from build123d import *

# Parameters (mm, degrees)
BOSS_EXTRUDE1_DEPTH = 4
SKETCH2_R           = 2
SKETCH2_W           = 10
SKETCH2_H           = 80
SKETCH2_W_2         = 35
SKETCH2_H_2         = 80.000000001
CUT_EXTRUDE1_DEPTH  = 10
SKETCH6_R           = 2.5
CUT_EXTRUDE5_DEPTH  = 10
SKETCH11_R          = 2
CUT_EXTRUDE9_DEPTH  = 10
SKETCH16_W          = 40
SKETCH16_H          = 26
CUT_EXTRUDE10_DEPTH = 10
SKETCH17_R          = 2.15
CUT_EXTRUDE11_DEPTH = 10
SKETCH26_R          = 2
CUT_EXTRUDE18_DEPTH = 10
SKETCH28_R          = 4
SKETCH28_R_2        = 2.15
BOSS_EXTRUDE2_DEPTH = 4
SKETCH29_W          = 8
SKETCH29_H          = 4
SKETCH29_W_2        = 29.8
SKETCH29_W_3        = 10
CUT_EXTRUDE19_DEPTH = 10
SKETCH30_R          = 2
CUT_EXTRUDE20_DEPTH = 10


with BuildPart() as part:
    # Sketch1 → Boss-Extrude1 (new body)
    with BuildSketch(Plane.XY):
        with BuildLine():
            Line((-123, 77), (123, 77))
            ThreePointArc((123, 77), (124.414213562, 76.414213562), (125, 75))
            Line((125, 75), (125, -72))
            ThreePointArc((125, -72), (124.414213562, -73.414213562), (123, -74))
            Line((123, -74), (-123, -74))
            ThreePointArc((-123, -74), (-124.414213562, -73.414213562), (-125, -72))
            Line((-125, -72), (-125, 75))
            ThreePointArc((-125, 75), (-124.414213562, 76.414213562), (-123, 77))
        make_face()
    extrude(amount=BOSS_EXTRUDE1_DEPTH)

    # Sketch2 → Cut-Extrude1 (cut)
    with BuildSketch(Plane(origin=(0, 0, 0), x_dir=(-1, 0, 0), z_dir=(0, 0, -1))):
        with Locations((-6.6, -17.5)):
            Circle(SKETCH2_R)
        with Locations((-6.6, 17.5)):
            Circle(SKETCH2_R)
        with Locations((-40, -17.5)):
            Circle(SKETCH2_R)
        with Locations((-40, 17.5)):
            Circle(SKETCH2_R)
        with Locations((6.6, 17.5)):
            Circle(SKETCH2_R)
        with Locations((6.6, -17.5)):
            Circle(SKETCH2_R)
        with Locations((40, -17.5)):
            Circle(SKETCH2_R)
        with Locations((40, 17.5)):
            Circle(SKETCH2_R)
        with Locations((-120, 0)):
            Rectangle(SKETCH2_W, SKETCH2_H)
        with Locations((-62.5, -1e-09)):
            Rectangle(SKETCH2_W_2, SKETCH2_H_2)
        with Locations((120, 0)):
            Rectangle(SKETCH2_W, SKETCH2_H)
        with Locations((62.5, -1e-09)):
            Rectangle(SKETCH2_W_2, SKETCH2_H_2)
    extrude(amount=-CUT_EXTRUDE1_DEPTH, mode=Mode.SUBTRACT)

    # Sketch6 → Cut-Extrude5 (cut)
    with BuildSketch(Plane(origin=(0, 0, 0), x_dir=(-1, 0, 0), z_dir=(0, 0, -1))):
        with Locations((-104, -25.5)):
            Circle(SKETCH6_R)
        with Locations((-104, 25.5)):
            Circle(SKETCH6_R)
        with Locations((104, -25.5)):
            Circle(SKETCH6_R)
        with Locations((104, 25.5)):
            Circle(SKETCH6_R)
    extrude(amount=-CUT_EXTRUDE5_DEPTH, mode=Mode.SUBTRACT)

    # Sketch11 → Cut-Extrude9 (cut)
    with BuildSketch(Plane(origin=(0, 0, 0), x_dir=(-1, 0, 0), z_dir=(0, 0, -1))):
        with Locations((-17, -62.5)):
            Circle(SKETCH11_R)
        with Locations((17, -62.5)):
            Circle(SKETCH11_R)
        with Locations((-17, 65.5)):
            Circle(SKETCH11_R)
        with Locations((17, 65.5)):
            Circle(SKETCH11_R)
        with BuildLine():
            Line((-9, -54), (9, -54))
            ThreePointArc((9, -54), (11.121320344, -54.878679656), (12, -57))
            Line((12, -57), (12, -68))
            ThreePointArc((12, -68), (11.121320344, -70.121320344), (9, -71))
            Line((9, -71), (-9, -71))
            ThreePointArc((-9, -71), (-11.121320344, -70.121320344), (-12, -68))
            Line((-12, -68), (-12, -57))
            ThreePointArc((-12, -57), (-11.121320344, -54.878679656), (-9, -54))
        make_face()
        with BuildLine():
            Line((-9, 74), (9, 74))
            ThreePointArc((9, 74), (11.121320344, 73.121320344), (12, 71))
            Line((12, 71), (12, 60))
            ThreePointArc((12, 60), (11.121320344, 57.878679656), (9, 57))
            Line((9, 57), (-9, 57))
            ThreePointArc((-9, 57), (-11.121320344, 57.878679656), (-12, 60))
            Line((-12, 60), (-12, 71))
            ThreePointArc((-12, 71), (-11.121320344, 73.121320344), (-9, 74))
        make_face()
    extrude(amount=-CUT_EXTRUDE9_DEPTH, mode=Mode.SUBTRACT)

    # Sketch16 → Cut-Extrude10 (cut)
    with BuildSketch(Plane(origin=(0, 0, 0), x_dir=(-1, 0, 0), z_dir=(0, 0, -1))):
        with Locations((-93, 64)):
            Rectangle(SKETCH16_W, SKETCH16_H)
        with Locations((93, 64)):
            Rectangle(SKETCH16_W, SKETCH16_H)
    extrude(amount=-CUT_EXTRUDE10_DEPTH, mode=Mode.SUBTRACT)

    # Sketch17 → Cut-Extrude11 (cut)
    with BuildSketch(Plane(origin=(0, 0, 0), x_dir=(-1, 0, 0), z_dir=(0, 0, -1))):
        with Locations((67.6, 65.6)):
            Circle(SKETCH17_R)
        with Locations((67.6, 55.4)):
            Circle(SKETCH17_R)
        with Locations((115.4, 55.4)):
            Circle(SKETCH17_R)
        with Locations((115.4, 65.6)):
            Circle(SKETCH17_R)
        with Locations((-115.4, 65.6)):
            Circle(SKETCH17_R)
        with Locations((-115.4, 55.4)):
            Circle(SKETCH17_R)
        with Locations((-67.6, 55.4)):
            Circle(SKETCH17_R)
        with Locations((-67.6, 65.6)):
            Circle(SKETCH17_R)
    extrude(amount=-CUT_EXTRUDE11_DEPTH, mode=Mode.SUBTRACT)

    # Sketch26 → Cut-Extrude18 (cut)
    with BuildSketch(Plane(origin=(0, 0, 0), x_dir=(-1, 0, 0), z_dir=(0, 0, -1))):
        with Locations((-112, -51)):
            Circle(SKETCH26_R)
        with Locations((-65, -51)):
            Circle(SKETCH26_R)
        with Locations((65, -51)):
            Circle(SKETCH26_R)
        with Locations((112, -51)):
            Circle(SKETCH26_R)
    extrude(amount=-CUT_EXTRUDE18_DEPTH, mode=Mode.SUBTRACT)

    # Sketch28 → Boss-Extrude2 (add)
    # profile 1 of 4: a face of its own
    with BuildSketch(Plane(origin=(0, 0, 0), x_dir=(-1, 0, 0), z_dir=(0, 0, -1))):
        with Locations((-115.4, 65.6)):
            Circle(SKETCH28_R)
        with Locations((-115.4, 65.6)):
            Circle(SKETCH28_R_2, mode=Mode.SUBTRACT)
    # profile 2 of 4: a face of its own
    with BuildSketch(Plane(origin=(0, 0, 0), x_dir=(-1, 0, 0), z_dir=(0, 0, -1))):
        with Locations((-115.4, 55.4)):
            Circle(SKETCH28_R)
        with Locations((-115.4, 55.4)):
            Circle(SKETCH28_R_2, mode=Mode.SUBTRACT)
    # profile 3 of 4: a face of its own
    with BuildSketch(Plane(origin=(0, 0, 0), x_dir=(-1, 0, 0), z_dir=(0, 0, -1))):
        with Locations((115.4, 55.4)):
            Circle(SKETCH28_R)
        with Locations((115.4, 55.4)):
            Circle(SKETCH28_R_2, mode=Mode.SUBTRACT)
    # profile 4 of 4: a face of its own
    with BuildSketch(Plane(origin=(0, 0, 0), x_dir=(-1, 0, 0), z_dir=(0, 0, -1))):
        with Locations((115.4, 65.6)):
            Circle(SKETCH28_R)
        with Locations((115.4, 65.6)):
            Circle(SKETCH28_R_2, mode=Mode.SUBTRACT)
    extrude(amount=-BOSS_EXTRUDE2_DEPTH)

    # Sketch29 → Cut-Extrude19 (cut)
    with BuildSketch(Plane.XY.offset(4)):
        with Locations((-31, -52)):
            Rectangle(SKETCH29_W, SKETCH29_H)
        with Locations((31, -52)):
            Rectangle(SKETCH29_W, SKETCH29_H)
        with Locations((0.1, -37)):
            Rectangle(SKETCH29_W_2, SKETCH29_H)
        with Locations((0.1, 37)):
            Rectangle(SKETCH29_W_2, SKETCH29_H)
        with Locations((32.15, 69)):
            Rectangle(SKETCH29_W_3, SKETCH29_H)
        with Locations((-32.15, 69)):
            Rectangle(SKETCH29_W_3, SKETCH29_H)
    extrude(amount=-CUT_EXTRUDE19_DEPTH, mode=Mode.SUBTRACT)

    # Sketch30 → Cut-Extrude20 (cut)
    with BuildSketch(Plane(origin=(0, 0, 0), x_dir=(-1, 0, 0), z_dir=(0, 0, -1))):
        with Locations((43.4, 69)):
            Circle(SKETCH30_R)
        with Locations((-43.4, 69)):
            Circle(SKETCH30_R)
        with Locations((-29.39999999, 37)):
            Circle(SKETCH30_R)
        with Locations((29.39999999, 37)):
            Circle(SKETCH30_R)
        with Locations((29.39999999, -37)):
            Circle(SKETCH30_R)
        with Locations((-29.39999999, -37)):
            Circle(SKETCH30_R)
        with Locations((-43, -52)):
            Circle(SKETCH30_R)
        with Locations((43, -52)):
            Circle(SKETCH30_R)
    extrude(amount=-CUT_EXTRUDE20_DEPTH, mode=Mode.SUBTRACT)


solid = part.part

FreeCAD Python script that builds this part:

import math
import FreeCAD as App
import Part
import Sketcher
from FreeCAD import Vector
Q = App.Units.Quantity


def add_polygon(sketch, points):
    """Adds a closed chain of lines whose ends are joined by coincident constraints."""
    first, n = sketch.GeometryCount, len(points)
    for a, b in zip(points, points[1:] + points[:1]):
        sketch.addGeometry(Part.LineSegment(App.Vector(*a, 0), App.Vector(*b, 0)), False)
    for i in range(n):
        sketch.addConstraint(Sketcher.Constraint("Coincident", first + i, 2, first + (i + 1) % n, 1))

doc = App.newDocument("Part")
body = doc.addObject("PartDesign::Body", "Body")

sketch1 = body.newObject("Sketcher::SketchObject", "Sketch")
sketch1.AttachmentSupport = (doc.getObject("XY_Plane"), [""])
sketch1.MapMode = "FlatFace"
sketch1.addGeometry([
    Part.LineSegment(Vector(123, 77, 0), Vector(-123, 77, 0)),
    Part.ArcOfCircle(Part.Circle(Vector(-123, 75, 0), Vector(0, 0, 1), 2), math.radians(90), math.radians(180)),
    Part.LineSegment(Vector(-125, 75, 0), Vector(-125, -72, 0)),
    Part.ArcOfCircle(Part.Circle(Vector(-123, -72, 0), Vector(0, 0, 1), 2), math.radians(-180), math.radians(-90)),
    Part.LineSegment(Vector(-123, -74, 0), Vector(123, -74, 0)),
    Part.ArcOfCircle(Part.Circle(Vector(123, -72, 0), Vector(0, 0, 1), 2), math.radians(-90), math.radians(0)),
    Part.LineSegment(Vector(125, -72, 0), Vector(125, 75, 0)),
    Part.ArcOfCircle(Part.Circle(Vector(123, 75, 0), Vector(0, 0, 1), 2), math.radians(0), math.radians(90)),
], False)
sketch1.addConstraint([
    Sketcher.Constraint("Tangent", 0, 2, 1, 1),
    Sketcher.Constraint("Tangent", 1, 2, 2, 1),
    Sketcher.Constraint("Tangent", 2, 2, 3, 1),
    Sketcher.Constraint("Tangent", 3, 2, 4, 1),
    Sketcher.Constraint("Tangent", 4, 2, 5, 1),
    Sketcher.Constraint("Tangent", 5, 2, 6, 1),
    Sketcher.Constraint("Tangent", 6, 2, 7, 1),
    Sketcher.Constraint("Tangent", 7, 2, 0, 1),
    Sketcher.Constraint("Horizontal", 0),
    Sketcher.Constraint("Vertical", 2),
    Sketcher.Constraint("Horizontal", 4),
    Sketcher.Constraint("Vertical", 6),
    Sketcher.Constraint("Equal", 1, 3),
    Sketcher.Constraint("Equal", 3, 5),
    Sketcher.Constraint("Equal", 5, 7),
    Sketcher.Constraint("Radius", 1, Q("2 mm")),
    Sketcher.Constraint("DistanceX", 0, 2, 0, 1, Q("246 mm")),
    Sketcher.Constraint("DistanceY", 2, 2, 2, 1, Q("147 mm")),
    Sketcher.Constraint("DistanceX", 1, 3, -1, 1, Q("123 mm")),
    Sketcher.Constraint("DistanceY", -1, 1, 1, 3, Q("75 mm")),
])
pad1 = body.newObject("PartDesign::Pad", "Pad")
pad1.Profile = sketch1
pad1.Length = 4

sketch2 = body.newObject("Sketcher::SketchObject", "Sketch001")
sketch2.AttachmentSupport = (doc.getObject("XY_Plane"), [""])
sketch2.MapMode = "FlatFace"
sketch2.addGeometry(Part.Circle(Vector(6.6, -17.5, 0), Vector(0, 0, 1), 2), False)
sketch2.addGeometry(Part.Circle(Vector(6.6, 17.5, 0), Vector(0, 0, 1), 2), False)
sketch2.addGeometry(Part.Circle(Vector(40, -17.5, 0), Vector(0, 0, 1), 2), False)
sketch2.addGeometry(Part.Circle(Vector(40, 17.5, 0), Vector(0, 0, 1), 2), False)
sketch2.addGeometry(Part.Circle(Vector(-6.6, 17.5, 0), Vector(0, 0, 1), 2), False)
sketch2.addGeometry(Part.Circle(Vector(-6.6, -17.5, 0), Vector(0, 0, 1), 2), False)
sketch2.addGeometry(Part.Circle(Vector(-40, -17.5, 0), Vector(0, 0, 1), 2), False)
sketch2.addGeometry(Part.Circle(Vector(-40, 17.5, 0), Vector(0, 0, 1), 2), False)
add_polygon(sketch2, [(125, 40), (125, -40), (115, -40), (115, 40)])
add_polygon(sketch2, [(80, 40), (80, -40), (45, -40), (45, 40)])
add_polygon(sketch2, [(-115, 40), (-115, -40), (-125, -40), (-125, 40)])
add_polygon(sketch2, [(-45, 40), (-45, -40), (-80, -40), (-80, 40)])
sketch2.addConstraint([
    Sketcher.Constraint("Vertical", 8),
    Sketcher.Constraint("Horizontal", 9),
    Sketcher.Constraint("Vertical", 10),
    Sketcher.Constraint("Horizontal", 11),
    Sketcher.Constraint("Vertical", 12),
    Sketcher.Constraint("Horizontal", 13),
    Sketcher.Constraint("Vertical", 14),
    Sketcher.Constraint("Horizontal", 15),
    Sketcher.Constraint("Vertical", 16),
    Sketcher.Constraint("Horizontal", 17),
    Sketcher.Constraint("Vertical", 18),
    Sketcher.Constraint("Horizontal", 19),
    Sketcher.Constraint("Vertical", 20),
    Sketcher.Constraint("Horizontal", 21),
    Sketcher.Constraint("Vertical", 22),
    Sketcher.Constraint("Horizontal", 23),
    Sketcher.Constraint("Equal", 0, 1),
    Sketcher.Constraint("Equal", 1, 2),
    Sketcher.Constraint("Equal", 2, 3),
    Sketcher.Constraint("Equal", 3, 4),
    Sketcher.Constraint("Equal", 4, 5),
    Sketcher.Constraint("Equal", 5, 6),
    Sketcher.Constraint("Equal", 6, 7),
    Sketcher.Constraint("Symmetric", 0, 3, 4, 3, -1, 1),
    Sketcher.Constraint("Symmetric", 1, 3, 5, 3, -1, 1),
    Sketcher.Constraint("Symmetric", 3, 3, 6, 3, -1, 1),
    Sketcher.Constraint("Symmetric", 2, 3, 7, 3, -1, 1),
    Sketcher.Constraint("Symmetric", 10, 2, 16, 2, -1, 1),
    Sketcher.Constraint("Symmetric", 8, 2, 18, 2, -1, 1),
    Sketcher.Constraint("Symmetric", 14, 2, 20, 2, -1, 1),
    Sketcher.Constraint("Symmetric", 12, 2, 22, 2, -1, 1),
    Sketcher.Constraint("Symmetric", 1, 3, 4, 3, -2),
    Sketcher.Constraint("Symmetric", 2, 3, 6, 3, -2),
    Sketcher.Constraint("Horizontal", 0, 3, 2, 3),
    Sketcher.Constraint("Horizontal", 9, 2, 12, 2),
    Sketcher.Constraint("Horizontal", 11, 2, 14, 2),
    Sketcher.Constraint("Horizontal", 13, 2, 16, 2),
    Sketcher.Constraint("Diameter", 0, Q("4 mm")),
    Sketcher.Constraint("DistanceX", 9, 2, 9, 1, Q("10 mm")),
    Sketcher.Constraint("DistanceX", 13, 2, 13, 1, Q("35 mm")),
    Sketcher.Constraint("DistanceY", 8, 2, 8, 1, Q("80 mm")),
    Sketcher.Constraint("DistanceX", -1, 1, 2, 3, Q("40 mm")),
    Sketcher.Constraint("DistanceX", -1, 1, 8, 2, Q("125 mm")),
    Sketcher.Constraint("DistanceX", -1, 1, 12, 2, Q("80 mm")),
    Sketcher.Constraint("DistanceY", 0, 3, 1, 3, Q("35 mm")),
    Sketcher.Constraint("DistanceX", -1, 1, 0, 3, Q("6.6 mm")),
])
pocket1 = body.newObject("PartDesign::Pocket", "Pocket")
pocket1.Profile = sketch2
pocket1.Length = 10
pocket1.Reversed = True

sketch3 = body.newObject("Sketcher::SketchObject", "Sketch002")
sketch3.AttachmentSupport = (doc.getObject("XY_Plane"), [""])
sketch3.MapMode = "FlatFace"
sketch3.addGeometry([
    Part.Circle(Vector(104, -25.5, 0), Vector(0, 0, 1), 2.5),
    Part.Circle(Vector(104, 25.5, 0), Vector(0, 0, 1), 2.5),
    Part.Circle(Vector(-104, -25.5, 0), Vector(0, 0, 1), 2.5),
    Part.Circle(Vector(-104, 25.5, 0), Vector(0, 0, 1), 2.5),
], False)
sketch3.addConstraint([
    Sketcher.Constraint("Equal", 0, 1),
    Sketcher.Constraint("Equal", 1, 2),
    Sketcher.Constraint("Equal", 2, 3),
    Sketcher.Constraint("Symmetric", 1, 3, 2, 3, -1, 1),
    Sketcher.Constraint("Symmetric", 0, 3, 3, 3, -1, 1),
    Sketcher.Constraint("Symmetric", 0, 3, 2, 3, -2),
    Sketcher.Constraint("Diameter", 0, Q("5 mm")),
    Sketcher.Constraint("DistanceX", -1, 1, 0, 3, Q("104 mm")),
    Sketcher.Constraint("DistanceY", 0, 3, 1, 3, Q("51 mm")),
])
pocket2 = body.newObject("PartDesign::Pocket", "Pocket001")
pocket2.Profile = sketch3
pocket2.Length = 10
pocket2.Reversed = True

sketch4 = body.newObject("Sketcher::SketchObject", "Sketch003")
sketch4.AttachmentSupport = (doc.getObject("XY_Plane"), [""])
sketch4.MapMode = "FlatFace"
sketch4.addGeometry([
    Part.Circle(Vector(17, -62.5, 0), Vector(0, 0, 1), 2),
    Part.Circle(Vector(-17, -62.5, 0), Vector(0, 0, 1), 2),
    Part.Circle(Vector(17, 65.5, 0), Vector(0, 0, 1), 2),
    Part.Circle(Vector(-17, 65.5, 0), Vector(0, 0, 1), 2),
    Part.LineSegment(Vector(-9, -54, 0), Vector(9, -54, 0)),
    Part.ArcOfCircle(Part.Circle(Vector(9, -57, 0), Vector(0, 0, 1), 3), math.radians(0), math.radians(90)),
    Part.LineSegment(Vector(12, -57, 0), Vector(12, -68, 0)),
    Part.ArcOfCircle(Part.Circle(Vector(9, -68, 0), Vector(0, 0, 1), 3), math.radians(-90), math.radians(0)),
    Part.LineSegment(Vector(9, -71, 0), Vector(-9, -71, 0)),
    Part.ArcOfCircle(Part.Circle(Vector(-9, -68, 0), Vector(0, 0, 1), 3), math.radians(180), math.radians(270)),
    Part.LineSegment(Vector(-12, -68, 0), Vector(-12, -57, 0)),
    Part.ArcOfCircle(Part.Circle(Vector(-9, -57, 0), Vector(0, 0, 1), 3), math.radians(90), math.radians(180)),
    Part.LineSegment(Vector(-9, 74, 0), Vector(9, 74, 0)),
    Part.ArcOfCircle(Part.Circle(Vector(9, 71, 0), Vector(0, 0, 1), 3), math.radians(0), math.radians(90)),
    Part.LineSegment(Vector(12, 71, 0), Vector(12, 60, 0)),
    Part.ArcOfCircle(Part.Circle(Vector(9, 60, 0), Vector(0, 0, 1), 3), math.radians(-90), math.radians(0)),
    Part.LineSegment(Vector(9, 57, 0), Vector(-9, 57, 0)),
    Part.ArcOfCircle(Part.Circle(Vector(-9, 60, 0), Vector(0, 0, 1), 3), math.radians(180), math.radians(270)),
    Part.LineSegment(Vector(-12, 60, 0), Vector(-12, 71, 0)),
    Part.ArcOfCircle(Part.Circle(Vector(-9, 71, 0), Vector(0, 0, 1), 3), math.radians(90), math.radians(180)),
], False)
sketch4.addConstraint([
    Sketcher.Constraint("Tangent", 4, 2, 5, 2),
    Sketcher.Constraint("Tangent", 5, 1, 6, 1),
    Sketcher.Constraint("Tangent", 6, 2, 7, 2),
    Sketcher.Constraint("Tangent", 7, 1, 8, 1),
    Sketcher.Constraint("Tangent", 8, 2, 9, 2),
    Sketcher.Constraint("Tangent", 9, 1, 10, 1),
    Sketcher.Constraint("Tangent", 10, 2, 11, 2),
    Sketcher.Constraint("Tangent", 11, 1, 4, 1),
    Sketcher.Constraint("Tangent", 12, 2, 13, 2),
    Sketcher.Constraint("Tangent", 13, 1, 14, 1),
    Sketcher.Constraint("Tangent", 14, 2, 15, 2),
    Sketcher.Constraint("Tangent", 15, 1, 16, 1),
    Sketcher.Constraint("Tangent", 16, 2, 17, 2),
    Sketcher.Constraint("Tangent", 17, 1, 18, 1),
    Sketcher.Constraint("Tangent", 18, 2, 19, 2),
    Sketcher.Constraint("Tangent", 19, 1, 12, 1),
    Sketcher.Constraint("Horizontal", 4),
    Sketcher.Constraint("Vertical", 6),
    Sketcher.Constraint("Horizontal", 8),
    Sketcher.Constraint("Vertical", 10),
    Sketcher.Constraint("Horizontal", 12),
    Sketcher.Constraint("Vertical", 14),
    Sketcher.Constraint("Horizontal", 16),
    Sketcher.Constraint("Vertical", 18),
    Sketcher.Constraint("Equal", 0, 1),
    Sketcher.Constraint("Equal", 1, 2),
    Sketcher.Constraint("Equal", 2, 3),
    Sketcher.Constraint("Equal", 5, 7),
    Sketcher.Constraint("Equal", 7, 9),
    Sketcher.Constraint("Equal", 9, 11),
    Sketcher.Constraint("Equal", 11, 13),
    Sketcher.Constraint("Equal", 13, 15),
    Sketcher.Constraint("Equal", 15, 17),
    Sketcher.Constraint("Equal", 17, 19),
    Sketcher.Constraint("Symmetric", 0, 3, 1, 3, -2),
    Sketcher.Constraint("Symmetric", 2, 3, 3, 3, -2),
    Sketcher.Constraint("Vertical", 0, 3, 2, 3),
    Sketcher.Constraint("Vertical", 7, 3, 13, 3),
    Sketcher.Constraint("Vertical", 11, 3, 17, 3),
    Sketcher.Constraint("Equal", 10, 14),
    Sketcher.Constraint("Diameter", 0, Q("4 mm")),
    Sketcher.Constraint("Radius", 5, Q("3 mm")),
    Sketcher.Constraint("DistanceX", 4, 1, 4, 2, Q("18 mm")),
    Sketcher.Constraint("DistanceY", 6, 2, 6, 1, Q("11 mm")),
    Sketcher.Constraint("DistanceX", -1, 1, 0, 3, Q("17 mm")),
    Sketcher.Constraint("DistanceX", -1, 1, 5, 3, Q("9 mm")),
    Sketcher.Constraint("DistanceY", 5, 3, -1, 1, Q("57 mm")),
    Sketcher.Constraint("DistanceY", -1, 1, 13, 3, Q("71 mm")),
    Sketcher.Constraint("DistanceY", 0, 3, 2, 3, Q("128 mm")),
    Sketcher.Constraint("DistanceY", 0, 3, -1, 1, Q("62.5 mm")),
])
pocket3 = body.newObject("PartDesign::Pocket", "Pocket002")
pocket3.Profile = sketch4
pocket3.Length = 10
pocket3.Reversed = True

sketch5 = body.newObject("Sketcher::SketchObject", "Sketch004")
sketch5.AttachmentSupport = (doc.getObject("XY_Plane"), [""])
sketch5.MapMode = "FlatFace"
add_polygon(sketch5, [(113, 77), (113, 51), (73, 51), (73, 77)])
add_polygon(sketch5, [(-73, 77), (-73, 51), (-113, 51), (-113, 77)])
sketch5.addConstraint([
    Sketcher.Constraint("Vertical", 0),
    Sketcher.Constraint("Horizontal", 1),
    Sketcher.Constraint("Vertical", 2),
    Sketcher.Constraint("Horizontal", 3),
    Sketcher.Constraint("Vertical", 4),
    Sketcher.Constraint("Horizontal", 5),
    Sketcher.Constraint("Vertical", 6),
    Sketcher.Constraint("Horizontal", 7),
    Sketcher.Constraint("Symmetric", 1, 2, 4, 2, -2),
    Sketcher.Constraint("Symmetric", 3, 2, 6, 2, -2),
    Sketcher.Constraint("DistanceX", 1, 2, 1, 1, Q("40 mm")),
    Sketcher.Constraint("DistanceY", 0, 2, 0, 1, Q("26 mm")),
    Sketcher.Constraint("DistanceX", -1, 1, 0, 2, Q("113 mm")),
    Sketcher.Constraint("DistanceY", -1, 1, 0, 2, Q("51 mm")),
])
pocket4 = body.newObject("PartDesign::Pocket", "Pocket003")
pocket4.Profile = sketch5
pocket4.Length = 10
pocket4.Reversed = True

sketch6 = body.newObject("Sketcher::SketchObject", "Sketch005")
sketch6.AttachmentSupport = (doc.getObject("XY_Plane"), [""])
sketch6.MapMode = "FlatFace"
sketch6.addGeometry([
    Part.Circle(Vector(-67.6, 65.6, 0), Vector(0, 0, 1), 2.1),
    Part.Circle(Vector(-67.6, 55.4, 0), Vector(0, 0, 1), 2.1),
    Part.Circle(Vector(-115.4, 55.4, 0), Vector(0, 0, 1), 2.1),
    Part.Circle(Vector(-115.4, 65.6, 0), Vector(0, 0, 1), 2.1),
    Part.Circle(Vector(115.4, 65.6, 0), Vector(0, 0, 1), 2.1),
    Part.Circle(Vector(115.4, 55.4, 0), Vector(0, 0, 1), 2.1),
    Part.Circle(Vector(67.6, 55.4, 0), Vector(0, 0, 1), 2.1),
    Part.Circle(Vector(67.6, 65.6, 0), Vector(0, 0, 1), 2.1),
], False)
sketch6.addConstraint([
    Sketcher.Constraint("Equal", 0, 1),
    Sketcher.Constraint("Equal", 1, 2),
    Sketcher.Constraint("Equal", 2, 3),
    Sketcher.Constraint("Equal", 3, 4),
    Sketcher.Constraint("Equal", 4, 5),
    Sketcher.Constraint("Equal", 5, 6),
    Sketcher.Constraint("Equal", 6, 7),
    Sketcher.Constraint("Symmetric", 3, 3, 4, 3, -2),
    Sketcher.Constraint("Symmetric", 2, 3, 5, 3, -2),
    Sketcher.Constraint("Symmetric", 1, 3, 6, 3, -2),
    Sketcher.Constraint("Symmetric", 0, 3, 7, 3, -2),
    Sketcher.Constraint("Horizontal", 1, 3, 2, 3),
    Sketcher.Constraint("Horizontal", 0, 3, 3, 3),
    Sketcher.Constraint("Vertical", 0, 3, 1, 3),
    Sketcher.Constraint("Vertical", 2, 3, 3, 3),
    Sketcher.Constraint("Diameter", 0, Q("4.3 mm")),
    Sketcher.Constraint("DistanceX", 0, 3, 4, 3, Q("183 mm")),
    Sketcher.Constraint("DistanceX", 0, 3, -1, 1, Q("67.6 mm")),
    Sketcher.Constraint("DistanceY", -1, 1, 0, 3, Q("65.6 mm")),
    Sketcher.Constraint("DistanceY", -1, 1, 1, 3, Q("55.4 mm")),
])
pocket5 = body.newObject("PartDesign::Pocket", "Pocket004")
pocket5.Profile = sketch6
pocket5.Length = 10
pocket5.Reversed = True

sketch7 = body.newObject("Sketcher::SketchObject", "Sketch006")
sketch7.AttachmentSupport = (doc.getObject("XY_Plane"), [""])
sketch7.MapMode = "FlatFace"
sketch7.addGeometry([
    Part.Circle(Vector(112, -51, 0), Vector(0, 0, 1), 2),
    Part.Circle(Vector(65, -51, 0), Vector(0, 0, 1), 2),
    Part.Circle(Vector(-65, -51, 0), Vector(0, 0, 1), 2),
    Part.Circle(Vector(-112, -51, 0), Vector(0, 0, 1), 2),
], False)
sketch7.addConstraint([
    Sketcher.Constraint("Equal", 0, 1),
    Sketcher.Constraint("Equal", 1, 2),
    Sketcher.Constraint("Equal", 2, 3),
    Sketcher.Constraint("Symmetric", 1, 3, 2, 3, -2),
    Sketcher.Constraint("Symmetric", 0, 3, 3, 3, -2),
    Sketcher.Constraint("Horizontal", 0, 3, 1, 3),
    Sketcher.Constraint("Diameter", 0, Q("4 mm")),
    Sketcher.Constraint("DistanceX", -1, 1, 0, 3, Q("112 mm")),
    Sketcher.Constraint("DistanceY", 0, 3, -1, 1, Q("51 mm")),
    Sketcher.Constraint("DistanceX", -1, 1, 1, 3, Q("65 mm")),
])
pocket6 = body.newObject("PartDesign::Pocket", "Pocket005")
pocket6.Profile = sketch7
pocket6.Length = 10
pocket6.Reversed = True

sketch8 = body.newObject("Sketcher::SketchObject", "Sketch007")
sketch8.AttachmentSupport = (doc.getObject("XY_Plane"), [""])
sketch8.MapMode = "FlatFace"
sketch8.addGeometry([
    Part.Circle(Vector(115.4, 65.6, 0), Vector(0, 0, 1), 4),
    Part.Circle(Vector(115.4, 65.6, 0), Vector(0, 0, 1), 2.1),
    Part.Circle(Vector(115.4, 55.4, 0), Vector(0, 0, 1), 4),
    Part.Circle(Vector(115.4, 55.4, 0), Vector(0, 0, 1), 2.1),
    Part.Circle(Vector(-115.4, 55.4, 0), Vector(0, 0, 1), 4),
    Part.Circle(Vector(-115.4, 55.4, 0), Vector(0, 0, 1), 2.1),
    Part.Circle(Vector(-115.4, 65.6, 0), Vector(0, 0, 1), 4),
    Part.Circle(Vector(-115.4, 65.6, 0), Vector(0, 0, 1), 2.1),
], False)
sketch8.addConstraint([
    Sketcher.Constraint("Coincident", 1, 3, 0, 3),
    Sketcher.Constraint("Coincident", 3, 3, 2, 3),
    Sketcher.Constraint("Coincident", 5, 3, 4, 3),
    Sketcher.Constraint("Coincident", 7, 3, 6, 3),
    Sketcher.Constraint("Equal", 0, 2),
    Sketcher.Constraint("Equal", 1, 3),
    Sketcher.Constraint("Equal", 2, 4),
    Sketcher.Constraint("Equal", 3, 5),
    Sketcher.Constraint("Equal", 4, 6),
    Sketcher.Constraint("Equal", 5, 7),
    Sketcher.Constraint("Symmetric", 2, 3, 4, 3, -2),
    Sketcher.Constraint("Symmetric", 0, 3, 6, 3, -2),
    Sketcher.Constraint("Vertical", 1, 3, 2, 3),
    Sketcher.Constraint("Diameter", 0, Q("8 mm")),
    Sketcher.Constraint("Diameter", 1, Q("4.3 mm")),
    Sketcher.Constraint("DistanceX", -1, 1, 0, 3, Q("115.4 mm")),
    Sketcher.Constraint("DistanceY", -1, 1, 0, 3, Q("65.6 mm")),
    Sketcher.Constraint("DistanceY", -1, 1, 2, 3, Q("55.4 mm")),
])
pad2 = body.newObject("PartDesign::Pad", "Pad001")
pad2.Profile = sketch8
pad2.Length = 4

sketch9 = body.newObject("Sketcher::SketchObject", "Sketch008")
sketch9.AttachmentSupport = (doc.getObject("XY_Plane"), [""])
sketch9.MapMode = "FlatFace"
sketch9.AttachmentOffset = App.Placement(Vector(0, 0, 4), App.Rotation())
add_polygon(sketch9, [(-35, -50), (-35, -54), (-27, -54), (-27, -50)])
add_polygon(sketch9, [(27, -50), (27, -54), (35, -54), (35, -50)])
add_polygon(sketch9, [(-14.8, -35), (-14.8, -39), (15, -39), (15, -35)])
add_polygon(sketch9, [(-14.8, 39), (-14.8, 35), (15, 35), (15, 39)])
add_polygon(sketch9, [(27.1, 71), (27.1, 67), (37.1, 67), (37.1, 71)])
add_polygon(sketch9, [(-37.1, 71), (-37.1, 67), (-27.1, 67), (-27.1, 71)])
sketch9.addConstraint([
    Sketcher.Constraint("Vertical", 0),
    Sketcher.Constraint("Horizontal", 1),
    Sketcher.Constraint("Vertical", 2),
    Sketcher.Constraint("Horizontal", 3),
    Sketcher.Constraint("Vertical", 4),
    Sketcher.Constraint("Horizontal", 5),
    Sketcher.Constraint("Vertical", 6),
    Sketcher.Constraint("Horizontal", 7),
    Sketcher.Constraint("Vertical", 8),
    Sketcher.Constraint("Horizontal", 9),
    Sketcher.Constraint("Vertical", 10),
    Sketcher.Constraint("Horizontal", 11),
    Sketcher.Constraint("Vertical", 12),
    Sketcher.Constraint("Horizontal", 13),
    Sketcher.Constraint("Vertical", 14),
    Sketcher.Constraint("Horizontal", 15),
    Sketcher.Constraint("Vertical", 16),
    Sketcher.Constraint("Horizontal", 17),
    Sketcher.Constraint("Vertical", 18),
    Sketcher.Constraint("Horizontal", 19),
    Sketcher.Constraint("Vertical", 20),
    Sketcher.Constraint("Horizontal", 21),
    Sketcher.Constraint("Vertical", 22),
    Sketcher.Constraint("Horizontal", 23),
    Sketcher.Constraint("Symmetric", 1, 2, 4, 2, -2),
    Sketcher.Constraint("Symmetric", 3, 2, 6, 2, -2),
    Sketcher.Constraint("Symmetric", 17, 2, 20, 2, -2),
    Sketcher.Constraint("Symmetric", 19, 2, 22, 2, -2),
    Sketcher.Constraint("Symmetric", 11, 2, 12, 2, -1),
    Sketcher.Constraint("Symmetric", 9, 2, 14, 2, -1),
    Sketcher.Constraint("Equal", 6, 8),
    Sketcher.Constraint("Equal", 14, 16),
    Sketcher.Constraint("DistanceX", 1, 1, 1, 2, Q("8 mm")),
    Sketcher.Constraint("DistanceX", 17, 1, 17, 2, Q("10 mm")),
    Sketcher.Constraint("DistanceY", 0, 2, 0, 1, Q("4 mm")),
    Sketcher.Constraint("DistanceX", 9, 1, 9, 2, Q("29.8 mm")),
    Sketcher.Constraint("DistanceX", 0, 2, -1, 1, Q("35 mm")),
    Sketcher.Constraint("DistanceY", 0, 2, -1, 1, Q("54 mm")),
    Sketcher.Constraint("DistanceY", 8, 2, -1, 1, Q("39 mm")),
    Sketcher.Constraint("DistanceX", -1, 1, 9, 2, Q("15 mm")),
    Sketcher.Constraint("DistanceY", -1, 1, 16, 2, Q("67 mm")),
    Sketcher.Constraint("DistanceX", 20, 2, 16, 2, Q("64.3 mm")),
])
pocket7 = body.newObject("PartDesign::Pocket", "Pocket006")
pocket7.Profile = sketch9
pocket7.Length = 10

sketch10 = body.newObject("Sketcher::SketchObject", "Sketch009")
sketch10.AttachmentSupport = (doc.getObject("XY_Plane"), [""])
sketch10.MapMode = "FlatFace"
sketch10.addGeometry([
    Part.Circle(Vector(-43.4, 69, 0), Vector(0, 0, 1), 2),
    Part.Circle(Vector(43.4, 69, 0), Vector(0, 0, 1), 2),
    Part.Circle(Vector(29.4, 37, 0), Vector(0, 0, 1), 2),
    Part.Circle(Vector(-29.4, 37, 0), Vector(0, 0, 1), 2),
    Part.Circle(Vector(-29.4, -37, 0), Vector(0, 0, 1), 2),
    Part.Circle(Vector(29.4, -37, 0), Vector(0, 0, 1), 2),
    Part.Circle(Vector(43, -52, 0), Vector(0, 0, 1), 2),
    Part.Circle(Vector(-43, -52, 0), Vector(0, 0, 1), 2),
], False)
sketch10.addConstraint([
    Sketcher.Constraint("Equal", 0, 1),
    Sketcher.Constraint("Equal", 1, 2),
    Sketcher.Constraint("Equal", 2, 3),
    Sketcher.Constraint("Equal", 3, 4),
    Sketcher.Constraint("Equal", 4, 5),
    Sketcher.Constraint("Equal", 5, 6),
    Sketcher.Constraint("Equal", 6, 7),
    Sketcher.Constraint("Symmetric", 2, 3, 4, 3, -1, 1),
    Sketcher.Constraint("Symmetric", 3, 3, 5, 3, -1, 1),
    Sketcher.Constraint("Symmetric", 0, 3, 1, 3, -2),
    Sketcher.Constraint("Symmetric", 2, 3, 3, 3, -2),
    Sketcher.Constraint("Symmetric", 6, 3, 7, 3, -2),
    Sketcher.Constraint("Diameter", 0, Q("4 mm")),
    Sketcher.Constraint("DistanceY", -1, 1, 0, 3, Q("69 mm")),
    Sketcher.Constraint("DistanceY", -1, 1, 2, 3, Q("37 mm")),
    Sketcher.Constraint("DistanceX", -1, 1, 6, 3, Q("43 mm")),
    Sketcher.Constraint("DistanceY", 6, 3, -1, 1, Q("52 mm")),
    Sketcher.Constraint("DistanceX", 2, 3, 1, 3, Q("14 mm")),
    Sketcher.Constraint("DistanceX", 0, 3, -1, 1, Q("43.4 mm")),
])
pocket8 = body.newObject("PartDesign::Pocket", "Pocket007")
pocket8.Profile = sketch10
pocket8.Length = 10
pocket8.Reversed = True

doc.recompute()
